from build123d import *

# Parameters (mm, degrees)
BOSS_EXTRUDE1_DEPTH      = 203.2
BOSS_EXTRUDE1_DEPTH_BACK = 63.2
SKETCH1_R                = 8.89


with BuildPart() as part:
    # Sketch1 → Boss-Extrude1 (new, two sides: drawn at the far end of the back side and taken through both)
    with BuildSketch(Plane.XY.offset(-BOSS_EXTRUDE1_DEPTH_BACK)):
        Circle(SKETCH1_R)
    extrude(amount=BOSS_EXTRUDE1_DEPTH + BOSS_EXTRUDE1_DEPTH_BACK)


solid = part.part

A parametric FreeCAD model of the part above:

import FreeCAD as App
import Part
import Sketcher

V = App.Vector
Q = App.Units.Quantity

doc = App.newDocument("Part")
body = doc.addObject("PartDesign::Body", "Body")

sketch1 = doc.addObject("Sketcher::SketchObject", "Sketch")
body.addObject(sketch1)
sketch1.AttachmentSupport = (doc.XY_Plane, [""])
sketch1.MapMode = "FlatFace"
sketch1.addGeometry(Part.Circle(V(0, 0, 0), V(0, 0, 1), 8.89), False)
sketch1.addConstraint([
    Sketcher.Constraint("Coincident", 0, 3, -1, 1),
    Sketcher.Constraint("Diameter", 0, Q("0.7 in")),
])
pad1 = doc.addObject("PartDesign::Pad", "Pad")
body.addObject(pad1)
pad1.Profile = sketch1
pad1.Type = "TwoLengths"
pad1.Length = Q("8 in")
pad1.Length2 = 63.2

doc.recompute()
